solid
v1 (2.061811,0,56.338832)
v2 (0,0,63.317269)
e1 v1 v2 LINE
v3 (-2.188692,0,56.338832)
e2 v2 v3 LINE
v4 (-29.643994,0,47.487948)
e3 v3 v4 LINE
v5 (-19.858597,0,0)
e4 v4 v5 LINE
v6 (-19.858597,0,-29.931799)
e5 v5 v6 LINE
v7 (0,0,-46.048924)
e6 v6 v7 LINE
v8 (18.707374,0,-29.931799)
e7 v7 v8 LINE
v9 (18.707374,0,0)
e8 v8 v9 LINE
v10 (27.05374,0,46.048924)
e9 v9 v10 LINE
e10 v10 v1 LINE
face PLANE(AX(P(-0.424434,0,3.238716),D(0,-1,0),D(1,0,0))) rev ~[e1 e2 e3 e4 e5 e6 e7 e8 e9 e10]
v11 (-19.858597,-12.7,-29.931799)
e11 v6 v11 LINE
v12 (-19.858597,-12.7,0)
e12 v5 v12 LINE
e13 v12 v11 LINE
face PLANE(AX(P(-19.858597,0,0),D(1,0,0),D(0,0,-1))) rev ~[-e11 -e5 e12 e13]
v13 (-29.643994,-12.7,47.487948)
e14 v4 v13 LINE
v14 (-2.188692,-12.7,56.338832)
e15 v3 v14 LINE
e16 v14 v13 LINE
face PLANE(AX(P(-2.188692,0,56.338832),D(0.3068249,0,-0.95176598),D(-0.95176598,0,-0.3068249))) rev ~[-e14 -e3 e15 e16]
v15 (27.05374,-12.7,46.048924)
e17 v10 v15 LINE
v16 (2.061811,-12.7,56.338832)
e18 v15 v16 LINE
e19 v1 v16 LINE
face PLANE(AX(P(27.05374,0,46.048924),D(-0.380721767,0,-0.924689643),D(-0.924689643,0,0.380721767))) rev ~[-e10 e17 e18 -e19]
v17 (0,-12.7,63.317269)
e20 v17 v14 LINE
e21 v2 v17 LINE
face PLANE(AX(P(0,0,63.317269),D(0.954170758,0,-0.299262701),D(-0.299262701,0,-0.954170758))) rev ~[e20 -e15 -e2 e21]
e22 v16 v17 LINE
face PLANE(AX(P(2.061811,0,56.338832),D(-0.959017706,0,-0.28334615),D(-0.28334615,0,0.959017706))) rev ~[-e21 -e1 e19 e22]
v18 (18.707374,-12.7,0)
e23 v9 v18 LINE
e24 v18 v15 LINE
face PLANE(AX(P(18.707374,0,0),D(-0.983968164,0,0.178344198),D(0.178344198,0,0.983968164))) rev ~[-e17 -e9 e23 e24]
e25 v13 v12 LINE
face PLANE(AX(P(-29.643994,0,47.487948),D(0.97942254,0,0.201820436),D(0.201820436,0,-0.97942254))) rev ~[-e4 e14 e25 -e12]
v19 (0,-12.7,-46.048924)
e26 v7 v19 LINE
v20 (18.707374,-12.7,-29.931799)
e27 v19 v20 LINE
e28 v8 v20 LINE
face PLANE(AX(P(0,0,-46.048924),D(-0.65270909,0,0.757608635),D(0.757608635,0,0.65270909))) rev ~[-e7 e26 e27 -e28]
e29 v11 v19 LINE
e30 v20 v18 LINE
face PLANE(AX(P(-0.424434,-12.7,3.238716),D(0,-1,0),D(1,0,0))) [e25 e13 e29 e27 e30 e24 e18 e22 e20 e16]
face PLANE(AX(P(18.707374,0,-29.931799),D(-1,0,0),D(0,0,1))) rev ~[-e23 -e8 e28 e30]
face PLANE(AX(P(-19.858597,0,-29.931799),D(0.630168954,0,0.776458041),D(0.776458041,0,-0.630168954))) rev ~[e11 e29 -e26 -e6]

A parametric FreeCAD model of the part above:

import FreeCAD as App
import Part
import Sketcher

V = App.Vector
Q = App.Units.Quantity

doc = App.newDocument("Part")
body = doc.addObject("PartDesign::Body", "Body")

sketch1 = body.newObject("Sketcher::SketchObject", "Sketch")
sketch1.AttachmentSupport = (doc.getObject("XZ_Plane"), [""])
sketch1.MapMode = "FlatFace"
sketch1.addGeometry(Part.LineSegment(V(-20, 0, 0), V(-20, -30, 0)), False)
sketch1.addGeometry(Part.LineSegment(V(-20, -30, 0), V(0, -46, 0)), False)
sketch1.addGeometry(Part.LineSegment(V(0, -46, 0), V(19, -30, 0)), False)
sketch1.addGeometry(Part.LineSegment(V(19, -30, 0), V(19, 0, 0)), False)
sketch1.addGeometry(Part.LineSegment(V(19, 0, 0), V(27, 46, 0)), False)
sketch1.addGeometry(Part.LineSegment(V(27, 46, 0), V(2, 56, 0)), False)
sketch1.addGeometry(Part.LineSegment(V(2, 56, 0), V(0, 63, 0)), False)
sketch1.addGeometry(Part.LineSegment(V(0, 63, 0), V(-2, 56, 0)), False)
sketch1.addGeometry(Part.LineSegment(V(-2, 56, 0), V(-30, 47, 0)), False)
sketch1.addGeometry(Part.LineSegment(V(-30, 47, 0), V(-20, 0, 0)), False)
sketch1.addConstraint(Sketcher.Constraint("Coincident", 0, 2, 1, 1))
sketch1.addConstraint(Sketcher.Constraint("Coincident", 1, 2, 2, 1))
sketch1.addConstraint(Sketcher.Constraint("Coincident", 2, 2, 3, 1))
sketch1.addConstraint(Sketcher.Constraint("Coincident", 3, 2, 4, 1))
sketch1.addConstraint(Sketcher.Constraint("Coincident", 4, 2, 5, 1))
sketch1.addConstraint(Sketcher.Constraint("Coincident", 5, 2, 6, 1))
sketch1.addConstraint(Sketcher.Constraint("Coincident", 6, 2, 7, 1))
sketch1.addConstraint(Sketcher.Constraint("Coincident", 7, 2, 8, 1))
sketch1.addConstraint(Sketcher.Constraint("Coincident", 8, 2, 9, 1))
sketch1.addConstraint(Sketcher.Constraint("Coincident", 9, 2, 0, 1))
sketch1.addConstraint(Sketcher.Constraint("Vertical", 0))
sketch1.addConstraint(Sketcher.Constraint("Vertical", 3))
sketch1.addConstraint(Sketcher.Constraint("PointOnObject", 1, 2, -2))
sketch1.addConstraint(Sketcher.Constraint("PointOnObject", 3, 2, -1))
sketch1.addConstraint(Sketcher.Constraint("PointOnObject", 6, 2, -2))
sketch1.addConstraint(Sketcher.Constraint("PointOnObject", 9, 2, -1))
sketch1.addConstraint(Sketcher.Constraint("Horizontal", 0, 2, 2, 2))
sketch1.addConstraint(Sketcher.Constraint("Horizontal", 5, 2, 7, 2))
sketch1.addConstraint(Sketcher.Constraint("Angle", 6, Q("106.460015 deg")))
sketch1.addConstraint(Sketcher.Constraint("DistanceY", 0, 2, 0, 1, Q("29.931799 mm")))
sketch1.addConstraint(Sketcher.Constraint("Distance", 4, Q("46.799201 mm")))
sketch1.addConstraint(Sketcher.Constraint("DistanceX", 8, 2, 7, 2, Q("27.455302 mm")))
sketch1.addConstraint(Sketcher.Constraint("Distance", 1, Q("25.575879 mm")))
sketch1.addConstraint(Sketcher.Constraint("Distance", 5, Q("27.02737 mm")))
sketch1.addConstraint(Sketcher.Constraint("Distance", 6, Q("7.276651 mm")))
sketch1.addConstraint(Sketcher.Constraint("Distance", 9, Q("48.48566 mm")))
sketch1.addConstraint(Sketcher.Constraint("DistanceX", -1, 1, 4, 2, Q("27.05374 mm")))
sketch1.addConstraint(Sketcher.Constraint("DistanceY", -1, 1, 5, 2, Q("56.338832 mm")))
sketch1.addConstraint(Sketcher.Constraint("DistanceY", -1, 1, 8, 2, Q("47.487948 mm")))
sketch1.addConstraint(Sketcher.Constraint("DistanceX", 0, 2, 2, 2, Q("38.565971 mm")))
pad1 = body.newObject("PartDesign::Pad", "Pad")
pad1.Profile = sketch1
pad1.Length = Q("0.5 in")

doc.recompute()
